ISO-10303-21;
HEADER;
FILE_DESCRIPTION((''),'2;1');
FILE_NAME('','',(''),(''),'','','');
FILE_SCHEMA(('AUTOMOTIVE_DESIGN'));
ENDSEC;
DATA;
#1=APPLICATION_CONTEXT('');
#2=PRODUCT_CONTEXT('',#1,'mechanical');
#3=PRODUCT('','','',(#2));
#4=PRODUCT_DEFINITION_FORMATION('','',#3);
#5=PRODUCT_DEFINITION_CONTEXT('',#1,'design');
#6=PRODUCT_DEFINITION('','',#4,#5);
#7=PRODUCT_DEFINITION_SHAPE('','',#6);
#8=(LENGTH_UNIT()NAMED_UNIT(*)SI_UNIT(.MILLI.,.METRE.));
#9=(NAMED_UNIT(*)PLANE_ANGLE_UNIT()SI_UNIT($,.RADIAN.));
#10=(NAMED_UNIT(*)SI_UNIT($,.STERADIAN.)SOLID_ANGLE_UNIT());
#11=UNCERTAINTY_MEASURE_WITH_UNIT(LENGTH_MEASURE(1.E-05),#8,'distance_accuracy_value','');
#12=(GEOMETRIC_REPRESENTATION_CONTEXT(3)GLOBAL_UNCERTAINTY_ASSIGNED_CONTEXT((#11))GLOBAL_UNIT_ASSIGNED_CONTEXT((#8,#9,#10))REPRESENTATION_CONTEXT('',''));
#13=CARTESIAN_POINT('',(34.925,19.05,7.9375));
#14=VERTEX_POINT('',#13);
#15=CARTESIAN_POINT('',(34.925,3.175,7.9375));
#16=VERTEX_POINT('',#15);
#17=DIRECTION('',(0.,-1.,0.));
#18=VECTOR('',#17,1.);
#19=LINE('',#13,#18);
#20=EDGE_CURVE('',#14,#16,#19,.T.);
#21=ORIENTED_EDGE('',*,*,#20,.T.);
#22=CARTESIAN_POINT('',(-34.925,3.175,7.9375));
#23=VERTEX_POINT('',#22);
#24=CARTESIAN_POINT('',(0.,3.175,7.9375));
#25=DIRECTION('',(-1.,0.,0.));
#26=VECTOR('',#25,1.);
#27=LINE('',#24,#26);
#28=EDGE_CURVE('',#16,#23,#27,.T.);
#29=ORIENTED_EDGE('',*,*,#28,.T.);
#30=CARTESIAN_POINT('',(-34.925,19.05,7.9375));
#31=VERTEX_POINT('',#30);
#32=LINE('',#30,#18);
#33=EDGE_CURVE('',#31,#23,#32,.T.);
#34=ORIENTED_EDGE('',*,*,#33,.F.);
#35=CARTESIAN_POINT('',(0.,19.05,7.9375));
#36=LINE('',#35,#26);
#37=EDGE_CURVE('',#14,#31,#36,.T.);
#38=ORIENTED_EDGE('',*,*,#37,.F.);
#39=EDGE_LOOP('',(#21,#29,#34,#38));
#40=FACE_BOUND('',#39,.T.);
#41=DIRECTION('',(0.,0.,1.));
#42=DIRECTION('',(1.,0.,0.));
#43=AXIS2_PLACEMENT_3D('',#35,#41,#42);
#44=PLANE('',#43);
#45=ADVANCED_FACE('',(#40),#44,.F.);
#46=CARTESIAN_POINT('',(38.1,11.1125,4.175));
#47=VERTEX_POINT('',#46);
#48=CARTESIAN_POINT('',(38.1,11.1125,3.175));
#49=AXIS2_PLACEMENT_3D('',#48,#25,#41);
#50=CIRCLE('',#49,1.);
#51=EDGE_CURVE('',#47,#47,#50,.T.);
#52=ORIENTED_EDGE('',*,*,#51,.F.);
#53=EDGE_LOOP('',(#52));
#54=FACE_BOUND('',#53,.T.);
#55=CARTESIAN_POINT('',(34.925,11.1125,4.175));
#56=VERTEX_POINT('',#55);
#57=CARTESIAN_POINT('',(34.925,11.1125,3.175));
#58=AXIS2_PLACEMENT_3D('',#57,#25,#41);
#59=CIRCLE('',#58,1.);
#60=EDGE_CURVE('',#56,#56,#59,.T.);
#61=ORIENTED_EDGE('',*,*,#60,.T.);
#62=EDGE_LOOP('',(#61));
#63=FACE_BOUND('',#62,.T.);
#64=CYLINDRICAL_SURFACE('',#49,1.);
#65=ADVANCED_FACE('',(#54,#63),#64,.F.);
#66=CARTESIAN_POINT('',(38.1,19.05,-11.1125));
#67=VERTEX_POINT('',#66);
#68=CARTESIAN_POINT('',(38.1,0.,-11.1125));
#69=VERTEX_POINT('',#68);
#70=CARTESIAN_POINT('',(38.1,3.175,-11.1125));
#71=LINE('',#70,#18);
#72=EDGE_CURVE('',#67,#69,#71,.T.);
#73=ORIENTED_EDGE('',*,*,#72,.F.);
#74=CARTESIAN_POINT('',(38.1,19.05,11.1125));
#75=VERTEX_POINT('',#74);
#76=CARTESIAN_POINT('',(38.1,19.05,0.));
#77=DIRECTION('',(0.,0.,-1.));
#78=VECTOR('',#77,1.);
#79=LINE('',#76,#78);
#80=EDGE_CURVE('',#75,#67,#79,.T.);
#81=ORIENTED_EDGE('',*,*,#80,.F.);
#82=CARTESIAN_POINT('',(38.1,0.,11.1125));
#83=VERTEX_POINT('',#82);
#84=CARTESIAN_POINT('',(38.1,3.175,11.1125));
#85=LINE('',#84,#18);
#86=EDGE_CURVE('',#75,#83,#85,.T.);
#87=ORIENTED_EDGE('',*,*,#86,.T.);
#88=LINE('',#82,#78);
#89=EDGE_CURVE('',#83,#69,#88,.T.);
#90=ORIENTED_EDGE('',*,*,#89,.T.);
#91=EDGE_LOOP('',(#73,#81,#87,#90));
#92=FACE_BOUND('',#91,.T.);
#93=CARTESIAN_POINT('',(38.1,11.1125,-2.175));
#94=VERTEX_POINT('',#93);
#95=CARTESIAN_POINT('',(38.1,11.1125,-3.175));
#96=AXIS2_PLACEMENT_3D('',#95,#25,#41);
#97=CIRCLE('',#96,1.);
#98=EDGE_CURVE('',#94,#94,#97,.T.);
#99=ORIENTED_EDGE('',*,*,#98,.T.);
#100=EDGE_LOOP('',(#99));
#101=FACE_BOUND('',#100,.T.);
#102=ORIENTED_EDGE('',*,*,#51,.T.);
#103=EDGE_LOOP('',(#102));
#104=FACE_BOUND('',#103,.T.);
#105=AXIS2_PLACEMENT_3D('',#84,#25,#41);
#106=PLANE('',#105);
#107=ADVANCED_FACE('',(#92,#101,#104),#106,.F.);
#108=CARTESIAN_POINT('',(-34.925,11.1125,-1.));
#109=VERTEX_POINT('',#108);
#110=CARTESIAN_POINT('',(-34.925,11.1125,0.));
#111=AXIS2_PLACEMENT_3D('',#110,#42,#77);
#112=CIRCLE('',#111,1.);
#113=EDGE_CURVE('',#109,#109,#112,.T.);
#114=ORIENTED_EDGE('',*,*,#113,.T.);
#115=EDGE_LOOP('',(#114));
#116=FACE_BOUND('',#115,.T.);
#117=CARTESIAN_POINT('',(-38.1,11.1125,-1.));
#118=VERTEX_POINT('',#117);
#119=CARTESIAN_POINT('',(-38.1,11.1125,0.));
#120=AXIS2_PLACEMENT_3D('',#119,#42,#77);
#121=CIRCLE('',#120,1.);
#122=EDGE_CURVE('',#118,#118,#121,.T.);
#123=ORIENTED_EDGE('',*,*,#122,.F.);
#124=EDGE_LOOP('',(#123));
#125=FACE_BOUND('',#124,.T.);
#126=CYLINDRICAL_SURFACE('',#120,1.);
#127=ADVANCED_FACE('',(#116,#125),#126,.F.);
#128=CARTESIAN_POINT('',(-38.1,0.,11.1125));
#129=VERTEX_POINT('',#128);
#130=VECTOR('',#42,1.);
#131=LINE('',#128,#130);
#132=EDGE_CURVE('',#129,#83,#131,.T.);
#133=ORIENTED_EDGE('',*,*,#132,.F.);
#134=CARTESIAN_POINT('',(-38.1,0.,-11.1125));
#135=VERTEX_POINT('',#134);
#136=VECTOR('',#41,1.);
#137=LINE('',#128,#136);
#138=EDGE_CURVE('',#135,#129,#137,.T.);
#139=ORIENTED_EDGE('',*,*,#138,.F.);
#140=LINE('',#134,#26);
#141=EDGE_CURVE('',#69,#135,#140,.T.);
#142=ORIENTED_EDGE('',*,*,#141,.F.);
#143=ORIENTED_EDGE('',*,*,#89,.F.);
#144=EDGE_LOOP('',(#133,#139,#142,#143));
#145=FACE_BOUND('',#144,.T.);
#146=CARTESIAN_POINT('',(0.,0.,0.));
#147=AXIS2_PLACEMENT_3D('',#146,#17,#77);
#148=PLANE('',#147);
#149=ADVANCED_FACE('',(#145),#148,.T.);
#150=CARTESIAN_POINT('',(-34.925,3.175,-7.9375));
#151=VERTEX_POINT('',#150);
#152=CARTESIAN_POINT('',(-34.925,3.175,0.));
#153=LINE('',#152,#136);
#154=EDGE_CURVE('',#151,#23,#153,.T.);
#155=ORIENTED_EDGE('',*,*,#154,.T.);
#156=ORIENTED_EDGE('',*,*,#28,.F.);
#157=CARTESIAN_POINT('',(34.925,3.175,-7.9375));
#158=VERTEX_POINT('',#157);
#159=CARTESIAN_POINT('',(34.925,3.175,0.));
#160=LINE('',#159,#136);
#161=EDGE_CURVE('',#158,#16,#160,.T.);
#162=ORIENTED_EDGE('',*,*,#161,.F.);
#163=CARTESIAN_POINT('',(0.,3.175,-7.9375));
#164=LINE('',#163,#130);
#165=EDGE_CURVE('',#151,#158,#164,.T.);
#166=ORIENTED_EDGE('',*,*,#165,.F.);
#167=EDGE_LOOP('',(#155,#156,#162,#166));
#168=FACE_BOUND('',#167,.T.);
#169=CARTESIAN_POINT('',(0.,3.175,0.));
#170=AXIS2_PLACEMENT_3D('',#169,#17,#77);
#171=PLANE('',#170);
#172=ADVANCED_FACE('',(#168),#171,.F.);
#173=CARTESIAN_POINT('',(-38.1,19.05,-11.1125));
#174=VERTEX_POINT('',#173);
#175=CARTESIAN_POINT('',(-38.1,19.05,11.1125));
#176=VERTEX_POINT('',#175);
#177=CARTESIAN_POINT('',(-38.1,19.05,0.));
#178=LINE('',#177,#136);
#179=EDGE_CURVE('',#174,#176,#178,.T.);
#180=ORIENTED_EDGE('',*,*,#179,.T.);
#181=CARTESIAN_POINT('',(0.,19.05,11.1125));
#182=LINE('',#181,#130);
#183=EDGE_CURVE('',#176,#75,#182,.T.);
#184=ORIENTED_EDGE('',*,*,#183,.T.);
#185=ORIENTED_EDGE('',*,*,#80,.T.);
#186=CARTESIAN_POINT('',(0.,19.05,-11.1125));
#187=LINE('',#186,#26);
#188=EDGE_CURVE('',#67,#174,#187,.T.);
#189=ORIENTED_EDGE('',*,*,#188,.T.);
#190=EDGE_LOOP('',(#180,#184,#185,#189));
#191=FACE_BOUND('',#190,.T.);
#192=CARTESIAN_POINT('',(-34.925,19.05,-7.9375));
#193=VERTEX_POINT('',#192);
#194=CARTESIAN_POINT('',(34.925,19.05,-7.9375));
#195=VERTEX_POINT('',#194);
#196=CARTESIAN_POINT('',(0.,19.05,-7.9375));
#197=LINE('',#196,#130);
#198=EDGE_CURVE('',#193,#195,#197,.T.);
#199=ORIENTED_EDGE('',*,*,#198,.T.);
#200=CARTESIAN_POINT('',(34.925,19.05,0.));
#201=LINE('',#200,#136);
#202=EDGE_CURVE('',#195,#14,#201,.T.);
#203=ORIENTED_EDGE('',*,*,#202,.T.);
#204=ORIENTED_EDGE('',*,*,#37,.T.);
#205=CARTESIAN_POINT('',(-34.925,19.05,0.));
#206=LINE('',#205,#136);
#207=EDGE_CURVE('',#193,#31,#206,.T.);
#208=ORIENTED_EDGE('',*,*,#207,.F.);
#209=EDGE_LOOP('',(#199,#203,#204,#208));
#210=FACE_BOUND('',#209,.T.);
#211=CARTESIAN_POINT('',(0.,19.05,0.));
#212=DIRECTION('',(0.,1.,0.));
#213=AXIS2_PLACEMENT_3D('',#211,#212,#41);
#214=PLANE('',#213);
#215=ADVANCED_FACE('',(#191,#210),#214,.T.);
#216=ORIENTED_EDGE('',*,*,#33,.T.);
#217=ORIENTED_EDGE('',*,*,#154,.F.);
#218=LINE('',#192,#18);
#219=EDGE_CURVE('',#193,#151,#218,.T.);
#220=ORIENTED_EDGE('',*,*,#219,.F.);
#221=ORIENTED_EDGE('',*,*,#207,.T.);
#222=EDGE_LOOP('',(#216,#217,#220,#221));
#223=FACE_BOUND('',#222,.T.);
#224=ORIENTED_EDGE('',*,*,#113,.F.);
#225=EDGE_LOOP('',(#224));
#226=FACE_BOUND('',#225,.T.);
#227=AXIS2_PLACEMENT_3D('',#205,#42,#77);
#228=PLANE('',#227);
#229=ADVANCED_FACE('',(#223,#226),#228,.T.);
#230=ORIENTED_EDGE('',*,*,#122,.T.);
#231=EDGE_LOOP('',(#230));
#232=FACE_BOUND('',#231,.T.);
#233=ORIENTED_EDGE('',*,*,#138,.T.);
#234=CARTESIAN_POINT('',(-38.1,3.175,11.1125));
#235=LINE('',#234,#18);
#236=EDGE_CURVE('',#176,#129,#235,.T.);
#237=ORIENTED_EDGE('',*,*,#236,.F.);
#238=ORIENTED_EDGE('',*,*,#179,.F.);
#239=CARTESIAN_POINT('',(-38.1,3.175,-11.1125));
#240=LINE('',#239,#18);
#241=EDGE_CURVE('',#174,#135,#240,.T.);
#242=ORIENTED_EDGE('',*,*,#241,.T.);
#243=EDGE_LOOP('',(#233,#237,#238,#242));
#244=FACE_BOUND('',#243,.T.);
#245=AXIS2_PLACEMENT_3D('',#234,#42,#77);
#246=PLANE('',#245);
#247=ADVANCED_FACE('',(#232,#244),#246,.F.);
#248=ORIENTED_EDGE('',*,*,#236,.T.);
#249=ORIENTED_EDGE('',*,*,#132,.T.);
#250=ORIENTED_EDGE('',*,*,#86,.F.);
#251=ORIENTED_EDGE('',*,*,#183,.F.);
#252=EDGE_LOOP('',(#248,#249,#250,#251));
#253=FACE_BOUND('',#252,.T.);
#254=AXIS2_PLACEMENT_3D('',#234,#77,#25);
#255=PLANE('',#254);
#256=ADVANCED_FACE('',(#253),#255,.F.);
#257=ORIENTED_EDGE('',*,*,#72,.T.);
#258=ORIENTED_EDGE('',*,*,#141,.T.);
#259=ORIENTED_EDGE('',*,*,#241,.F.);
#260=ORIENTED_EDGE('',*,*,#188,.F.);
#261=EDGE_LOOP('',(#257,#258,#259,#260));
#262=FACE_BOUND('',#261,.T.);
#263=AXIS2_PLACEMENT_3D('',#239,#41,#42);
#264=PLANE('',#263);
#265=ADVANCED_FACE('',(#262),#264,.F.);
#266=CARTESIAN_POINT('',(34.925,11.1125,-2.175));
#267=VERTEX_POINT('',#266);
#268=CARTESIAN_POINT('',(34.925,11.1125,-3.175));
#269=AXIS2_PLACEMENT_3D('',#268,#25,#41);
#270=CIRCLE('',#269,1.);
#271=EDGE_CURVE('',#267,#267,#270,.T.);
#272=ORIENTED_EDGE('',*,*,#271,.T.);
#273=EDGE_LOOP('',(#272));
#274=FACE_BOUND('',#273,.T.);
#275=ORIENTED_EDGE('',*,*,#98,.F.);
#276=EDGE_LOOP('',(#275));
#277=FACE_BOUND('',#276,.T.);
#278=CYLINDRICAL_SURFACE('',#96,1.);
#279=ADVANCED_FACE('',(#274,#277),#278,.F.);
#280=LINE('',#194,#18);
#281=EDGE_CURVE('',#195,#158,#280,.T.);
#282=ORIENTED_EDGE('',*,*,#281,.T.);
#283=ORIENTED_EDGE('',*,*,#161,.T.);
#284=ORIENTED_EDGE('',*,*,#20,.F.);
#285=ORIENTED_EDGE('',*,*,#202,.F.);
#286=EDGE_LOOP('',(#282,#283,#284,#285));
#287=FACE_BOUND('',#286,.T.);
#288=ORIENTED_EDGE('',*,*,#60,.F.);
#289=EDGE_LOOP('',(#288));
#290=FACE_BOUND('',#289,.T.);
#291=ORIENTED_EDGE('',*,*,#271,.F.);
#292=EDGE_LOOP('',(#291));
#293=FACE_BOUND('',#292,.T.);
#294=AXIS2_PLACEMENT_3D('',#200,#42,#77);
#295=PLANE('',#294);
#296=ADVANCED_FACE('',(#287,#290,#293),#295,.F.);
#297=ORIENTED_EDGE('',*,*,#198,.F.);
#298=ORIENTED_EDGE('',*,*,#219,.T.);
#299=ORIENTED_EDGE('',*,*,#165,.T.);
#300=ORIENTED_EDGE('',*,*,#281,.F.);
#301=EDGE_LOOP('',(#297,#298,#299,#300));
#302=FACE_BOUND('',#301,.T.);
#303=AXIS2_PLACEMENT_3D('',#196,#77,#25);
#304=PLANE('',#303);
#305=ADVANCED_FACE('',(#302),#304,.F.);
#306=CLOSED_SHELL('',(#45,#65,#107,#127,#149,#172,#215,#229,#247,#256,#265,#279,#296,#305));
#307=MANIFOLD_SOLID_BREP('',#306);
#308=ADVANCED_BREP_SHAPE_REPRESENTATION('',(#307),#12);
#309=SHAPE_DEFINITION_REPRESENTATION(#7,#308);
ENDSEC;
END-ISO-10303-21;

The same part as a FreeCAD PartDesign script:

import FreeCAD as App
import Part
import Sketcher
Q = App.Units.Quantity

doc = App.newDocument("Part")
body = doc.addObject("PartDesign::Body", "Body")

# Sketch on XZ plane
sketch1 = body.newObject("Sketcher::SketchObject", "Sketch")
sketch1.AttachmentSupport = (doc.getObject("XZ_Plane"), [""])
sketch1.MapMode = "FlatFace"
sketch1.addGeometry(Part.LineSegment(App.Vector(-38.1, -11.1125, 0), App.Vector(-38.1, 11.1125, 0)), False)
sketch1.addGeometry(Part.LineSegment(App.Vector(-38.1, 11.1125, 0), App.Vector(38.1, 11.1125, 0)), False)
sketch1.addGeometry(Part.LineSegment(App.Vector(38.1, 11.1125, 0), App.Vector(38.1, -11.1125, 0)), False)
sketch1.addGeometry(Part.LineSegment(App.Vector(38.1, -11.1125, 0), App.Vector(-38.1, -11.1125, 0)), False)
sketch1.addConstraint(Sketcher.Constraint("Coincident", 0, 2, 1, 1))
sketch1.addConstraint(Sketcher.Constraint("Coincident", 1, 2, 2, 1))
sketch1.addConstraint(Sketcher.Constraint("Coincident", 2, 2, 3, 1))
sketch1.addConstraint(Sketcher.Constraint("Coincident", 3, 2, 0, 1))
sketch1.addConstraint(Sketcher.Constraint("Vertical", 0))
sketch1.addConstraint(Sketcher.Constraint("Horizontal", 1))
sketch1.addConstraint(Sketcher.Constraint("Vertical", 2))
sketch1.addConstraint(Sketcher.Constraint("Horizontal", 3))
sketch1.addConstraint(Sketcher.Constraint("Symmetric", 0, 2, 2, 2, -1, 1))
sketch1.addConstraint(Sketcher.Constraint("DistanceX", 1, 1, 1, 2, Q("3 in")))
sketch1.addConstraint(Sketcher.Constraint("DistanceY", 0, 1, 0, 2, Q("0.875 in")))
pad1 = body.newObject("PartDesign::Pad", "Pad")
pad1.Profile = sketch1
pad1.Length = Q("0.125 in")
pad1.Reversed = True

# Sketch on XZ plane
sketch2 = body.newObject("Sketcher::SketchObject", "Sketch001")
sketch2.AttachmentSupport = (doc.getObject("XZ_Plane"), [""])
sketch2.MapMode = "FlatFace"
sketch2.AttachmentOffset = App.Placement(App.Vector(0, 0, -0.125 * 25.4), App.Rotation())
sketch2.addGeometry(Part.LineSegment(App.Vector(38.1, -11.1125, 0), App.Vector(-38.1, -11.1125, 0)), False)
sketch2.addGeometry(Part.LineSegment(App.Vector(-38.1, -11.1125, 0), App.Vector(-38.1, 11.1125, 0)), False)
sketch2.addGeometry(Part.LineSegment(App.Vector(-38.1, 11.1125, 0), App.Vector(38.1, 11.1125, 0)), False)
sketch2.addGeometry(Part.LineSegment(App.Vector(38.1, 11.1125, 0), App.Vector(38.1, -11.1125, 0)), False)
sketch2.addGeometry(Part.LineSegment(App.Vector(34.925, 7.9375, 0), App.Vector(-34.925, 7.9375, 0)), False)
sketch2.addGeometry(Part.LineSegment(App.Vector(-34.925, 7.9375, 0), App.Vector(-34.925, -7.9375, 0)), False)
sketch2.addGeometry(Part.LineSegment(App.Vector(-34.925, -7.9375, 0), App.Vector(34.925, -7.9375, 0)), False)
sketch2.addGeometry(Part.LineSegment(App.Vector(34.925, -7.9375, 0), App.Vector(34.925, 7.9375, 0)), False)
sketch2.addConstraint(Sketcher.Constraint("Coincident", 0, 2, 1, 1))
sketch2.addConstraint(Sketcher.Constraint("Coincident", 1, 2, 2, 1))
sketch2.addConstraint(Sketcher.Constraint("Coincident", 2, 2, 3, 1))
sketch2.addConstraint(Sketcher.Constraint("Coincident", 3, 2, 0, 1))
sketch2.addConstraint(Sketcher.Constraint("Coincident", 4, 2, 5, 1))
sketch2.addConstraint(Sketcher.Constraint("Coincident", 5, 2, 6, 1))
sketch2.addConstraint(Sketcher.Constraint("Coincident", 6, 2, 7, 1))
sketch2.addConstraint(Sketcher.Constraint("Coincident", 7, 2, 4, 1))
sketch2.addConstraint(Sketcher.Constraint("Horizontal", 0))
sketch2.addConstraint(Sketcher.Constraint("Vertical", 1))
sketch2.addConstraint(Sketcher.Constraint("Horizontal", 2))
sketch2.addConstraint(Sketcher.Constraint("Vertical", 3))
sketch2.addConstraint(Sketcher.Constraint("Horizontal", 4))
sketch2.addConstraint(Sketcher.Constraint("Vertical", 5))
sketch2.addConstraint(Sketcher.Constraint("Horizontal", 6))
sketch2.addConstraint(Sketcher.Constraint("Vertical", 7))
sketch2.addConstraint(Sketcher.Constraint("Symmetric", 0, 2, 2, 2, -1, 1))
sketch2.addConstraint(Sketcher.Constraint("Symmetric", 4, 2, 6, 2, -1, 1))
sketch2.addConstraint(Sketcher.Constraint("DistanceX", 0, 2, 0, 1, Q("3 in")))
sketch2.addConstraint(Sketcher.Constraint("DistanceX", 4, 2, 4, 1, Q("2.75 in")))
sketch2.addConstraint(Sketcher.Constraint("DistanceY", 1, 1, 1, 2, Q("0.875 in")))
sketch2.addConstraint(Sketcher.Constraint("DistanceY", 5, 2, 5, 1, Q("0.625 in")))
pad2 = body.newObject("PartDesign::Pad", "Pad001")
pad2.Profile = sketch2
pad2.Length = Q("0.625 in")
pad2.Reversed = True

# Sketch on YZ plane
sketch3 = body.newObject("Sketcher::SketchObject", "Sketch002")
sketch3.AttachmentSupport = (doc.getObject("YZ_Plane"), [""])
sketch3.MapMode = "FlatFace"
sketch3.AttachmentOffset = App.Placement(App.Vector(0, 0, 1.375 * 25.4), App.Rotation())
sketch3.addGeometry(Part.Circle(App.Vector(11.1125, 3.175, 0), App.Vector(0, 0, 1), 1), False)
sketch3.addGeometry(Part.Circle(App.Vector(11.1125, -3.175, 0), App.Vector(0, 0, 1), 1), False)
sketch3.addConstraint(Sketcher.Constraint("Equal", 0, 1))
sketch3.addConstraint(Sketcher.Constraint("Symmetric", 0, 3, 1, 3, -1))
sketch3.addConstraint(Sketcher.Constraint("Diameter", 0, 2.0))
sketch3.addConstraint(Sketcher.Constraint("DistanceY", 1, 3, 0, 3, Q("0.25 in")))
sketch3.addConstraint(Sketcher.Constraint("DistanceX", -1, 1, 0, 3, Q("0.4375 in")))
pocket1 = body.newObject("PartDesign::Pocket", "Pocket")
pocket1.Profile = sketch3
pocket1.Type = "ThroughAll"
pocket1.Reversed = True

# Sketch on YZ plane
sketch4 = body.newObject("Sketcher::SketchObject", "Sketch003")
sketch4.AttachmentSupport = (doc.getObject("YZ_Plane"), [""])
sketch4.MapMode = "FlatFace"
sketch4.AttachmentOffset = App.Placement(App.Vector(0, 0, -1.375 * 25.4), App.Rotation())
sketch4.addGeometry(Part.Circle(App.Vector(11.1125, 0, 0), App.Vector(0, 0, 1), 1), False)
sketch4.addConstraint(Sketcher.Constraint("PointOnObject", 0, 3, -1))
sketch4.addConstraint(Sketcher.Constraint("Diameter", 0, 2.0))
sketch4.addConstraint(Sketcher.Constraint("DistanceX", -1, 1, 0, 3, Q("0.4375 in")))
pocket2 = body.newObject("PartDesign::Pocket", "Pocket001")
pocket2.Profile = sketch4
pocket2.Type = "ThroughAll"

doc.recompute()
